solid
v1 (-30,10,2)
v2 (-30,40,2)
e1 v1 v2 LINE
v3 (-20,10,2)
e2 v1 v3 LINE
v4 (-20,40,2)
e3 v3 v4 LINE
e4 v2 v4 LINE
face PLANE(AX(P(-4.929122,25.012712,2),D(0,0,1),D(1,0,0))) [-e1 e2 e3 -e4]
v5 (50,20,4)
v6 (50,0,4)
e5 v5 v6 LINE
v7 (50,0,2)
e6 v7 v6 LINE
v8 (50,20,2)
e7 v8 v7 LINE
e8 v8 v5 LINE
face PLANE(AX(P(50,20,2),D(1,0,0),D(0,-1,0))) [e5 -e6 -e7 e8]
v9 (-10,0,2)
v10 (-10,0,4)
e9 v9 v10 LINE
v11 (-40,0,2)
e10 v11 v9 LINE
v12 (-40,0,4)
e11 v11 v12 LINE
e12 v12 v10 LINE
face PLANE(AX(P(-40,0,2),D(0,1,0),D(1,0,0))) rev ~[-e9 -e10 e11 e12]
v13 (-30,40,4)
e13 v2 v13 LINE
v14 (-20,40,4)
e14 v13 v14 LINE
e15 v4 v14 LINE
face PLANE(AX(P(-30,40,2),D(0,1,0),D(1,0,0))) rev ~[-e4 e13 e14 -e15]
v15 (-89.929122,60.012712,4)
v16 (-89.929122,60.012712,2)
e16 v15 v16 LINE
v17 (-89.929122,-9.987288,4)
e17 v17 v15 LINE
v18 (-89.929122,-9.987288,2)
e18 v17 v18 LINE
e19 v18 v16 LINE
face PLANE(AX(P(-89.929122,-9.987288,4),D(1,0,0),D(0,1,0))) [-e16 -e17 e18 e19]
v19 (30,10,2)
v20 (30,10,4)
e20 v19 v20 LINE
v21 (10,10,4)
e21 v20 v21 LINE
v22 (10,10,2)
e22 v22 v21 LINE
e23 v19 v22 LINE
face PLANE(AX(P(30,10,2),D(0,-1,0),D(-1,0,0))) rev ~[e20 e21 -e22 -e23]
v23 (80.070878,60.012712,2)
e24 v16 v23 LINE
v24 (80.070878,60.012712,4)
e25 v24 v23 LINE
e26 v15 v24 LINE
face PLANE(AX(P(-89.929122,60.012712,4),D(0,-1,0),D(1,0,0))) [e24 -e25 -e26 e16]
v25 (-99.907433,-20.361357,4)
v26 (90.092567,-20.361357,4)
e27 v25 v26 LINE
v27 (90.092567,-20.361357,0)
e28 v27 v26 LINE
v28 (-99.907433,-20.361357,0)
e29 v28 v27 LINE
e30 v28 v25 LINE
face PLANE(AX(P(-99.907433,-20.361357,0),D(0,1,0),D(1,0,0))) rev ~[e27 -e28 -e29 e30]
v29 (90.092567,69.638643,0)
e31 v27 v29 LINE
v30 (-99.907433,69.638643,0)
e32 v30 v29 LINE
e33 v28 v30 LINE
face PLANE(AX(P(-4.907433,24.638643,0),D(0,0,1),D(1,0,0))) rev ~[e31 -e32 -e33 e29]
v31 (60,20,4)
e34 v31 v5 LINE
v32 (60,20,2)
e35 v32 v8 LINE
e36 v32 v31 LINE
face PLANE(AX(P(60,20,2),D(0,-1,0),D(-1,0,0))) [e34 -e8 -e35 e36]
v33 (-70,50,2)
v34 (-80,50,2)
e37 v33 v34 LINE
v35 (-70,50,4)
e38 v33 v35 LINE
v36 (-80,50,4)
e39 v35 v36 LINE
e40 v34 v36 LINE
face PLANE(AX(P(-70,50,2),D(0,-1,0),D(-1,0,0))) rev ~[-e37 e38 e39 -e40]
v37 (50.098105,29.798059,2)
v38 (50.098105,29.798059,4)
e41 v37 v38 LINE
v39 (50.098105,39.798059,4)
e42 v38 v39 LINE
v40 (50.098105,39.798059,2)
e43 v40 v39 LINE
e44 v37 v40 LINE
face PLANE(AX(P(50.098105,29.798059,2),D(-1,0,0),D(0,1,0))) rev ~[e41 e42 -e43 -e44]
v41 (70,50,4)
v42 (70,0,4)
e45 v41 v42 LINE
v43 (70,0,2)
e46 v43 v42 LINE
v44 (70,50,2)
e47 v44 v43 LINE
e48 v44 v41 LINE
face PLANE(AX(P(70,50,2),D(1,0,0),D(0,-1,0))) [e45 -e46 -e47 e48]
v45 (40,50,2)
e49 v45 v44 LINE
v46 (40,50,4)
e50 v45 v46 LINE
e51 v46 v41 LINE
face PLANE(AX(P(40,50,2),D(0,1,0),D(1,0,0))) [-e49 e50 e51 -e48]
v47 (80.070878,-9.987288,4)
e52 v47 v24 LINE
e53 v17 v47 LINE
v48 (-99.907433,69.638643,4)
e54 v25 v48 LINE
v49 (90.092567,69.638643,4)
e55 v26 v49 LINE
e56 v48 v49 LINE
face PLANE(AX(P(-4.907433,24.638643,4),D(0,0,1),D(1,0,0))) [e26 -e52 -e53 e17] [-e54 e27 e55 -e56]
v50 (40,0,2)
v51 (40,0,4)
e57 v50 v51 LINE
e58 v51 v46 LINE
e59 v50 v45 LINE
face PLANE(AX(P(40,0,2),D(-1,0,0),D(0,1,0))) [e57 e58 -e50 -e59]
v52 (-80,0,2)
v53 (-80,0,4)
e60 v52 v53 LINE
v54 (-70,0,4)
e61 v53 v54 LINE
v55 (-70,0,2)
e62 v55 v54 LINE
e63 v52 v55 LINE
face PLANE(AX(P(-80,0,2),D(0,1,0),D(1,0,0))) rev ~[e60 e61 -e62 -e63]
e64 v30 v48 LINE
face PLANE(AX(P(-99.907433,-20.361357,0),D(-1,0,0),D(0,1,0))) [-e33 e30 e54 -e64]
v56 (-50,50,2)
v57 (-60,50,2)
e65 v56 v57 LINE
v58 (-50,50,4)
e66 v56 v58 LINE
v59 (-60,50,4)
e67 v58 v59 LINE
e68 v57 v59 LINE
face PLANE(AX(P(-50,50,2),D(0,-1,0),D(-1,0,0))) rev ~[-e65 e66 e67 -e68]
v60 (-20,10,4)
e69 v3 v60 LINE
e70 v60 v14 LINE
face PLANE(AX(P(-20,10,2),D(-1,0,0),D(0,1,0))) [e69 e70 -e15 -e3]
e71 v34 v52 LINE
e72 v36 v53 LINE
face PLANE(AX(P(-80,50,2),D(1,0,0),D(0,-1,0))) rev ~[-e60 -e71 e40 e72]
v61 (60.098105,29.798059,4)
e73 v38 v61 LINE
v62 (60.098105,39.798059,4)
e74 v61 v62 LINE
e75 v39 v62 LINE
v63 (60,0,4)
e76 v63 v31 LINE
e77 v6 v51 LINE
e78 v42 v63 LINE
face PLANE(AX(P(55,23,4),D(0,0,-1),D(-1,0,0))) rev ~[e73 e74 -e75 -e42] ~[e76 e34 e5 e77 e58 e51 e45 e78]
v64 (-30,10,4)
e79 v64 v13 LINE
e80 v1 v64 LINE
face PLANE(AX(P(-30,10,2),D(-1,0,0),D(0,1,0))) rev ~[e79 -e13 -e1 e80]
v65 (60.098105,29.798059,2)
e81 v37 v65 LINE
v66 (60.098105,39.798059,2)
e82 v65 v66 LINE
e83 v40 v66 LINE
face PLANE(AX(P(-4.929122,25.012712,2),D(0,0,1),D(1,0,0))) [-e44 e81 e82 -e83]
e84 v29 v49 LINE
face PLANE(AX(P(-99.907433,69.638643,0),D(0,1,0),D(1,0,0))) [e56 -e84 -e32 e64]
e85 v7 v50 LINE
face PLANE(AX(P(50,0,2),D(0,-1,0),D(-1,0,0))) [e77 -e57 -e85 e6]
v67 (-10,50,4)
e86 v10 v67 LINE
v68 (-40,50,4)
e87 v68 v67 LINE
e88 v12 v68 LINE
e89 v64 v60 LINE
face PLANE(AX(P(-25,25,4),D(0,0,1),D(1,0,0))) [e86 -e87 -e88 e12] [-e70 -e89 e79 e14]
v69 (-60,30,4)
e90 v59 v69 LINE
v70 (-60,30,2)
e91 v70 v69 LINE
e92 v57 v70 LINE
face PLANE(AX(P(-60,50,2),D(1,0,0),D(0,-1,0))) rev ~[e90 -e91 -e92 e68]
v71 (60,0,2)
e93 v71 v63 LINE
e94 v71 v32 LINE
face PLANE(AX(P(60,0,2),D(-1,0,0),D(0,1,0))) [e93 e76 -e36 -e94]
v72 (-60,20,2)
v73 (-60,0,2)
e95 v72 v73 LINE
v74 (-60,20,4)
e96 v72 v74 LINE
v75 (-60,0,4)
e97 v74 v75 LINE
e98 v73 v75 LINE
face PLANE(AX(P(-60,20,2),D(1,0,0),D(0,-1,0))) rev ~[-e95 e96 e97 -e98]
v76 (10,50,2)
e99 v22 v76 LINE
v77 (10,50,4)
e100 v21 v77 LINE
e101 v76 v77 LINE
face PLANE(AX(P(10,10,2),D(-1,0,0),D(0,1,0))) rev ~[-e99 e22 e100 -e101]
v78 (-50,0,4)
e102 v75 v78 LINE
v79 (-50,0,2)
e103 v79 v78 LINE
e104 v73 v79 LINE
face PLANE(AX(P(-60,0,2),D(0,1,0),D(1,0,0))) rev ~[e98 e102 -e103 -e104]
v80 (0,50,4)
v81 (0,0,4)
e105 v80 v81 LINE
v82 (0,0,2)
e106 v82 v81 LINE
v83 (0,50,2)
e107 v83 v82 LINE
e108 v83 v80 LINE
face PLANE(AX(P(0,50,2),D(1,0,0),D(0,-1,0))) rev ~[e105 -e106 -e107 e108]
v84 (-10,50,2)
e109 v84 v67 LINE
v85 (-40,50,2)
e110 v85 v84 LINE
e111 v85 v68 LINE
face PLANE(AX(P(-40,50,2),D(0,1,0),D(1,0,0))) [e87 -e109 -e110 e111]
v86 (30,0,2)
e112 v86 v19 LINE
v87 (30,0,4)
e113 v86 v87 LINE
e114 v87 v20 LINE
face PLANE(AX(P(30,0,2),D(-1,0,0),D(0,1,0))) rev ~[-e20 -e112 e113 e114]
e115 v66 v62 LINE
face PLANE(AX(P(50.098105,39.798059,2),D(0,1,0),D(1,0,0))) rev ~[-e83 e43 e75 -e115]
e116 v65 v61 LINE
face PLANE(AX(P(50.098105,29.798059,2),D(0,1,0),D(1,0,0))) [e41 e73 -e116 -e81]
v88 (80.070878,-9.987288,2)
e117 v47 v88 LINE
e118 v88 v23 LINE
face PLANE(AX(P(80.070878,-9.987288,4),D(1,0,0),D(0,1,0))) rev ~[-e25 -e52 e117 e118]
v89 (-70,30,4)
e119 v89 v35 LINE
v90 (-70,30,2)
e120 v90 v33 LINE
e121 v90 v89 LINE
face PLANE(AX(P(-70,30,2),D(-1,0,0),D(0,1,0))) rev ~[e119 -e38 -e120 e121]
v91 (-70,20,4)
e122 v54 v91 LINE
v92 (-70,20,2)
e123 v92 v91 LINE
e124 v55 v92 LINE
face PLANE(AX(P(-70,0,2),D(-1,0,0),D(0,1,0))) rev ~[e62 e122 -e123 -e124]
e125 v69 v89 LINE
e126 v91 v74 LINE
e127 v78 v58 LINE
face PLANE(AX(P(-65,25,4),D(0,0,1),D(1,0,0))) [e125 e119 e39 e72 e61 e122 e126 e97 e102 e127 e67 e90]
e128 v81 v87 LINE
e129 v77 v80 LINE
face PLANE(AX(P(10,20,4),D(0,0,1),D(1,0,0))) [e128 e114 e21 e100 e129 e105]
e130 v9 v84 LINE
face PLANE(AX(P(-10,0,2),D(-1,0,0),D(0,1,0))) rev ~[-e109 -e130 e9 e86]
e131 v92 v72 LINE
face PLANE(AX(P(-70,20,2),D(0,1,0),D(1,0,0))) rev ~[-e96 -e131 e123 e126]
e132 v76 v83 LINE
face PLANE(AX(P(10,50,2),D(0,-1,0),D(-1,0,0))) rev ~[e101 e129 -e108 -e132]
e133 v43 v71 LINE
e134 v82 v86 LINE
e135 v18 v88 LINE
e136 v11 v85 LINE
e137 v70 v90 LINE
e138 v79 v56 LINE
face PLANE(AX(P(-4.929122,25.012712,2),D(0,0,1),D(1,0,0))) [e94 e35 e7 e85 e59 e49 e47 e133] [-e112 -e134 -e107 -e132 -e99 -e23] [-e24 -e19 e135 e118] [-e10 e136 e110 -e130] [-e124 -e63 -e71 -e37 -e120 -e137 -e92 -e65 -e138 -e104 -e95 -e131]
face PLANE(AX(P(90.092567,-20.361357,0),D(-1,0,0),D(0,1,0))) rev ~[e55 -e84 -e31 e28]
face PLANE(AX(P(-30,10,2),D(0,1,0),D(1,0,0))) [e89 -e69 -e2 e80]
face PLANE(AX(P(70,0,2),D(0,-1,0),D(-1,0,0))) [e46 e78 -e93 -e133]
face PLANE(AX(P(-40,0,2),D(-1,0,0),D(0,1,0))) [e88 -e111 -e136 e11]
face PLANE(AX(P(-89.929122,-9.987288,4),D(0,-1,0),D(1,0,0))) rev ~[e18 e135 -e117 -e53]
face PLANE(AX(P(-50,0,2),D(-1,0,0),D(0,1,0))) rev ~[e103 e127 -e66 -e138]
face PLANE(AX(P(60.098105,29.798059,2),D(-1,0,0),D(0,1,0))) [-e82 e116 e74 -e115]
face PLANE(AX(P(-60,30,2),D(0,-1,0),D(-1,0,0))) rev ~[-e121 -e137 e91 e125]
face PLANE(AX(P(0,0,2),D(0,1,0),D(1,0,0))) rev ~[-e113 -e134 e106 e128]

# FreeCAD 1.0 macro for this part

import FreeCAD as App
import Part
import Sketcher

V = App.Vector


def add_polygon(sketch, points):
    """Adds a closed chain of lines whose ends are joined by coincident constraints."""
    first, n = sketch.GeometryCount, len(points)
    for a, b in zip(points, points[1:] + points[:1]):
        sketch.addGeometry(Part.LineSegment(App.Vector(*a, 0), App.Vector(*b, 0)), False)
    for i in range(n):
        sketch.addConstraint(Sketcher.Constraint("Coincident", first + i, 2, first + (i + 1) % n, 1))

doc = App.newDocument("Part")
body = doc.addObject("PartDesign::Body", "Body")

sketch1 = body.newObject("Sketcher::SketchObject", "Sketch")
sketch1.AttachmentSupport = (doc.getObject("XY_Plane"), [""])
sketch1.MapMode = "FlatFace"
add_polygon(sketch1, [(40, 50), (40, 0), (50, 0), (50, 20), (60, 20), (60, 0), (70, 0), (70, 50)])
add_polygon(sketch1, [(50.098105, 29.798059), (50.098105, 39.798059), (60.098105, 39.798059), (60.098105, 29.798059)])
sketch1.addConstraint(Sketcher.Constraint("Vertical", 0))
sketch1.addConstraint(Sketcher.Constraint("Horizontal", 1))
sketch1.addConstraint(Sketcher.Constraint("Vertical", 2))
sketch1.addConstraint(Sketcher.Constraint("Horizontal", 3))
sketch1.addConstraint(Sketcher.Constraint("Vertical", 4))
sketch1.addConstraint(Sketcher.Constraint("Horizontal", 5))
sketch1.addConstraint(Sketcher.Constraint("Vertical", 6))
sketch1.addConstraint(Sketcher.Constraint("Horizontal", 7))
sketch1.addConstraint(Sketcher.Constraint("Vertical", 8))
sketch1.addConstraint(Sketcher.Constraint("Horizontal", 9))
sketch1.addConstraint(Sketcher.Constraint("Vertical", 10))
sketch1.addConstraint(Sketcher.Constraint("Horizontal", 11))
sketch1.addConstraint(Sketcher.Constraint("PointOnObject", 0, 2, -1))
sketch1.addConstraint(Sketcher.Constraint("PointOnObject", 4, 2, -1))
sketch1.addConstraint(Sketcher.Constraint("Equal", 1, 3))
sketch1.addConstraint(Sketcher.Constraint("Equal", 3, 5))
sketch1.addConstraint(Sketcher.Constraint("Equal", 5, 9))
sketch1.addConstraint(Sketcher.Constraint("Equal", 11, 8))
sketch1.addConstraint(Sketcher.Constraint("DistanceX", 1, 1, 1, 2, 10.0))
sketch1.addConstraint(Sketcher.Constraint("DistanceY", 0, 2, 0, 1, 50.0))
sketch1.addConstraint(Sketcher.Constraint("DistanceY", 2, 1, 2, 2, 20.0))
sketch1.addConstraint(Sketcher.Constraint("DistanceX", -1, 1, 0, 2, 40.0))
sketch1.addConstraint(Sketcher.Constraint("DistanceY", -1, 1, 8, 2, 39.798059))
sketch1.addConstraint(Sketcher.Constraint("DistanceX", -1, 1, 8, 2, 50.098105))
pad1 = body.newObject("PartDesign::Pad", "Pad")
pad1.Profile = sketch1
pad1.Length = 2
body2 = doc.addObject("PartDesign::Body", "Body001")

sketch2 = body2.newObject("Sketcher::SketchObject", "Sketch001")
sketch2.AttachmentSupport = (doc.getObject("XY_Plane001"), [""])
sketch2.MapMode = "FlatFace"
add_polygon(sketch2, [(-40, 50), (-40, 0), (-10, 0), (-10, 50)])
add_polygon(sketch2, [(-20, 10), (-30, 10), (-30, 40), (-20, 40)])
sketch2.addConstraint(Sketcher.Constraint("Vertical", 0))
sketch2.addConstraint(Sketcher.Constraint("Horizontal", 1))
sketch2.addConstraint(Sketcher.Constraint("Vertical", 2))
sketch2.addConstraint(Sketcher.Constraint("Horizontal", 3))
sketch2.addConstraint(Sketcher.Constraint("Horizontal", 4))
sketch2.addConstraint(Sketcher.Constraint("Vertical", 5))
sketch2.addConstraint(Sketcher.Constraint("Horizontal", 6))
sketch2.addConstraint(Sketcher.Constraint("Vertical", 7))
sketch2.addConstraint(Sketcher.Constraint("PointOnObject", 0, 2, -1))
sketch2.addConstraint(Sketcher.Constraint("Equal", 3, 5))
sketch2.addConstraint(Sketcher.Constraint("DistanceX", 1, 1, 1, 2, 30.0))
sketch2.addConstraint(Sketcher.Constraint("DistanceX", 4, 2, 4, 1, 10.0))
sketch2.addConstraint(Sketcher.Constraint("DistanceY", 0, 2, 0, 1, 50.0))
sketch2.addConstraint(Sketcher.Constraint("DistanceX", 0, 2, -1, 1, 40.0))
sketch2.addConstraint(Sketcher.Constraint("DistanceX", 4, 2, -1, 1, 30.0))
sketch2.addConstraint(Sketcher.Constraint("DistanceY", -1, 1, 4, 2, 10.0))
pad2 = body2.newObject("PartDesign::Pad", "Pad001")
pad2.Profile = sketch2
pad2.Length = 2
body3 = doc.addObject("PartDesign::Body", "Body002")

sketch3 = body3.newObject("Sketcher::SketchObject", "Sketch002")
sketch3.AttachmentSupport = (doc.getObject("XY_Plane002"), [""])
sketch3.MapMode = "FlatFace"
add_polygon(sketch3, [(0, 50), (0, 0), (30, 0), (30, 10), (10, 10), (10, 50)])
sketch3.addConstraint(Sketcher.Constraint("Vertical", 0))
sketch3.addConstraint(Sketcher.Constraint("Horizontal", 1))
sketch3.addConstraint(Sketcher.Constraint("Vertical", 2))
sketch3.addConstraint(Sketcher.Constraint("Horizontal", 3))
sketch3.addConstraint(Sketcher.Constraint("Vertical", 4))
sketch3.addConstraint(Sketcher.Constraint("Horizontal", 5))
sketch3.addConstraint(Sketcher.Constraint("Coincident", 0, 2, -1, 1))
sketch3.addConstraint(Sketcher.Constraint("Equal", 5, 2))
sketch3.addConstraint(Sketcher.Constraint("DistanceX", 1, 1, 1, 2, 30.0))
sketch3.addConstraint(Sketcher.Constraint("DistanceX", 3, 2, 3, 1, 20.0))
sketch3.addConstraint(Sketcher.Constraint("DistanceY", 0, 2, 0, 1, 50.0))
pad3 = body3.newObject("PartDesign::Pad", "Pad002")
pad3.Profile = sketch3
pad3.Length = 2
body4 = doc.addObject("PartDesign::Body", "Body003")
body4.AllowCompound = True

sketch4 = body4.newObject("Sketcher::SketchObject", "Sketch003")
sketch4.AttachmentSupport = (doc.getObject("XY_Plane003"), [""])
sketch4.MapMode = "FlatFace"
add_polygon(sketch4, [(-80, 0), (-70, 0), (-70, 20), (-60, 20), (-60, 0), (-50, 0), (-50, 50), (-60, 50), (-60, 30), (-70, 30), (-70, 50), (-80, 50)])
sketch4.addConstraint(Sketcher.Constraint("Horizontal", 0))
sketch4.addConstraint(Sketcher.Constraint("Vertical", 1))
sketch4.addConstraint(Sketcher.Constraint("Horizontal", 2))
sketch4.addConstraint(Sketcher.Constraint("Vertical", 3))
sketch4.addConstraint(Sketcher.Constraint("Horizontal", 4))
sketch4.addConstraint(Sketcher.Constraint("Vertical", 5))
sketch4.addConstraint(Sketcher.Constraint("Horizontal", 6))
sketch4.addConstraint(Sketcher.Constraint("Vertical", 7))
sketch4.addConstraint(Sketcher.Constraint("Horizontal", 8))
sketch4.addConstraint(Sketcher.Constraint("Vertical", 9))
sketch4.addConstraint(Sketcher.Constraint("Horizontal", 10))
sketch4.addConstraint(Sketcher.Constraint("Vertical", 11))
sketch4.addConstraint(Sketcher.Constraint("PointOnObject", 0, 2, -1))
sketch4.addConstraint(Sketcher.Constraint("PointOnObject", 3, 2, -1))
sketch4.addConstraint(Sketcher.Constraint("Horizontal", 6, 2, 9, 2))
sketch4.addConstraint(Sketcher.Constraint("Vertical", 3, 2, 6, 2))
sketch4.addConstraint(Sketcher.Constraint("Vertical", 1, 2, 8, 2))
sketch4.addConstraint(Sketcher.Constraint("Equal", 0, 2))
sketch4.addConstraint(Sketcher.Constraint("Equal", 2, 4))
sketch4.addConstraint(Sketcher.Constraint("Equal", 3, 7))
sketch4.addConstraint(Sketcher.Constraint("DistanceX", 0, 1, 0, 2, 10.0))
sketch4.addConstraint(Sketcher.Constraint("DistanceY", 1, 1, 1, 2, 20.0))
sketch4.addConstraint(Sketcher.Constraint("DistanceY", 5, 1, 5, 2, 50.0))
sketch4.addConstraint(Sketcher.Constraint("DistanceX", 0, 2, -1, 1, 70.0))
pad4 = body4.newObject("PartDesign::Pad", "Pad003")
pad4.Profile = sketch4
pad4.Length = 2
doc.recompute()

boolean = body4.newObject("PartDesign::Boolean", "Boolean")
boolean.Type = "Fuse"
boolean.addObjects([body])
doc.recompute()

boolean2 = body4.newObject("PartDesign::Boolean", "Boolean001")
boolean2.Type = "Fuse"
boolean2.addObjects([body2])
doc.recompute()

boolean3 = body4.newObject("PartDesign::Boolean", "Boolean002")
boolean3.Type = "Fuse"
boolean3.addObjects([body3])
body5 = doc.addObject("PartDesign::Body", "Body004")
body5.AllowCompound = True
doc.recompute()

body4.Placement = App.Placement(V(0, 0, 2), App.Rotation(V(0, 0, 1), 0))
boolean4 = body5.newObject("PartDesign::Boolean", "Boolean003")
boolean4.Type = "Fuse"
boolean4.addObjects([body4])
body6 = doc.addObject("PartDesign::Body", "Body005")

sketch5 = body6.newObject("Sketcher::SketchObject", "Sketch004")
sketch5.AttachmentSupport = (doc.getObject("XY_Plane005"), [""])
sketch5.MapMode = "FlatFace"
add_polygon(sketch5, [(-99.907433, 69.638643), (-99.907433, -20.361357), (90.092567, -20.361357), (90.092567, 69.638643)])
sketch5.addConstraint(Sketcher.Constraint("Vertical", 0))
sketch5.addConstraint(Sketcher.Constraint("Horizontal", 1))
sketch5.addConstraint(Sketcher.Constraint("Vertical", 2))
sketch5.addConstraint(Sketcher.Constraint("Horizontal", 3))
sketch5.addConstraint(Sketcher.Constraint("DistanceX", 1, 1, 1, 2, 190.0))
sketch5.addConstraint(Sketcher.Constraint("DistanceY", 0, 2, 0, 1, 90.0))
sketch5.addConstraint(Sketcher.Constraint("DistanceX", 0, 2, -1, 1, 99.907433))
sketch5.addConstraint(Sketcher.Constraint("DistanceY", 0, 2, -1, 1, 20.361357))
pad5 = body6.newObject("PartDesign::Pad", "Pad004")
pad5.Profile = sketch5
pad5.Length = 4

sketch6 = body6.newObject("Sketcher::SketchObject", "Sketch005")
sketch6.AttachmentSupport = (doc.getObject("XY_Plane005"), [""])
sketch6.MapMode = "FlatFace"
sketch6.AttachmentOffset = App.Placement(V(0, 0, 4), App.Rotation())
add_polygon(sketch6, [(-89.929122, 60.012712), (-89.929122, -9.987288), (80.070878, -9.987288), (80.070878, 60.012712)])
sketch6.addConstraint(Sketcher.Constraint("Vertical", 0))
sketch6.addConstraint(Sketcher.Constraint("Horizontal", 1))
sketch6.addConstraint(Sketcher.Constraint("Vertical", 2))
sketch6.addConstraint(Sketcher.Constraint("Horizontal", 3))
sketch6.addConstraint(Sketcher.Constraint("DistanceX", 1, 1, 1, 2, 170.0))
sketch6.addConstraint(Sketcher.Constraint("DistanceY", 0, 2, 0, 1, 70.0))
sketch6.addConstraint(Sketcher.Constraint("DistanceX", 0, 2, -1, 1, 89.929122))
sketch6.addConstraint(Sketcher.Constraint("DistanceY", 0, 2, -1, 1, 9.987288))
pocket1 = body6.newObject("PartDesign::Pocket", "Pocket")
pocket1.Profile = sketch6
pocket1.Length = 2
doc.recompute()

boolean5 = body6.newObject("PartDesign::Boolean", "Boolean004")
boolean5.Type = "Fuse"
boolean5.addObjects([body5])

doc.recompute()
